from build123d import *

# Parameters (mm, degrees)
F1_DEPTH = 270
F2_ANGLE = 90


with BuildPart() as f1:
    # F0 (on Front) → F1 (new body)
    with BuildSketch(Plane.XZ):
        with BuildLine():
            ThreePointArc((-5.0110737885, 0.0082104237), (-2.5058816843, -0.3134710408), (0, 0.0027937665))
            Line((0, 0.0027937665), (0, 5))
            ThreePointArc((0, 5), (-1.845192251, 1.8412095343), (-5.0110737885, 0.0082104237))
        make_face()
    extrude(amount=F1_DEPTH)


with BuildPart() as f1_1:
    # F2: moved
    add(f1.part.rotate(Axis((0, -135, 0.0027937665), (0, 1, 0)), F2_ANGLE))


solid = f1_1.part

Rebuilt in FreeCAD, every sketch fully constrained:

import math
import FreeCAD as App
import Part
import Sketcher

doc = App.newDocument("Part")
body = doc.addObject("PartDesign::Body", "Body")

sketch1 = doc.addObject("Sketcher::SketchObject", "Sketch")
body.addObject(sketch1)
sketch1.AttachmentSupport = (doc.XZ_Plane, [""])
sketch1.MapMode = "FlatFace"
sketch1.addGeometry([
    Part.ArcOfCircle(Part.Circle(App.Vector(-2.5, 9.7, 0), App.Vector(0, 0, 1), 10), math.radians(-105), math.radians(-76)),
    Part.LineSegment(App.Vector(0, 0, 0), App.Vector(0, 5, 0)),
    Part.ArcOfCircle(Part.Circle(App.Vector(-6.9, 6.9, 0), App.Vector(0, 0, 1), 7.2), math.radians(-75), math.radians(-15)),
], False)
sketch1.addConstraint([
    Sketcher.Constraint("Coincident", 0, 2, 1, 1),
    Sketcher.Constraint("Coincident", 1, 2, 2, 2),
    Sketcher.Constraint("Coincident", 2, 1, 0, 1),
    Sketcher.Constraint("Vertical", 1),
    Sketcher.Constraint("PointOnObject", 0, 2, -2),
    Sketcher.Constraint("Radius", 0, 10.0),
    Sketcher.Constraint("DistanceY", -1, 1, 1, 2, 5.0),
    Sketcher.Constraint("Radius", 2, 7.151365),
    Sketcher.Constraint("DistanceX", 2, 1, 0, 3, 2.516001),
    Sketcher.Constraint("DistanceY", 1, 1, 1, 2, 4.997206),
    Sketcher.Constraint("DistanceY", -1, 1, 2, 1, 0.00821),
])
pad1 = doc.addObject("PartDesign::Pad", "Pad")
body.addObject(pad1)
pad1.Profile = sketch1
pad1.Length = 270
body2 = doc.addObject("PartDesign::Body", "Body001")
doc.recompute()

body.Placement = App.Placement(App.Vector(-0.002794, 0, 0.002794), App.Rotation(App.Vector(0, 1, 0), 90))
boolean = doc.addObject("PartDesign::Boolean", "Boolean")
body2.addObject(boolean)
boolean.Type = "Fuse"
boolean.addObjects([body])

doc.recompute()
